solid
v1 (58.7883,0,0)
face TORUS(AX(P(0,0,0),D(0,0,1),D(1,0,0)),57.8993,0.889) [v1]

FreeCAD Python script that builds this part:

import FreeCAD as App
import Part
import Sketcher
Q = App.Units.Quantity

doc = App.newDocument("Part")
body = doc.addObject("PartDesign::Body", "Body")

# Sketch on YZ plane
sketch1 = body.newObject("Sketcher::SketchObject", "Sketch")
sketch1.AttachmentSupport = (doc.getObject("YZ_Plane"), [""])
sketch1.MapMode = "FlatFace"
sketch1.addGeometry(Part.Circle(App.Vector(-57.8993, 0, 0), App.Vector(0, 0, 1), 0.889), False)
sketch1.addConstraint([
    Sketcher.Constraint("PointOnObject", 0, 3, -1),
    Sketcher.Constraint("Diameter", 0, Q("0.07 in")),
    Sketcher.Constraint("DistanceX", 0, 3, -1, 1, Q("2.2795 in")),
])
revolution = body.newObject("PartDesign::Revolution", "Revolution")
revolution.Profile = sketch1
revolution.ReferenceAxis = (sketch1, ["V_Axis"])
revolution.Angle = 360

doc.recompute()
